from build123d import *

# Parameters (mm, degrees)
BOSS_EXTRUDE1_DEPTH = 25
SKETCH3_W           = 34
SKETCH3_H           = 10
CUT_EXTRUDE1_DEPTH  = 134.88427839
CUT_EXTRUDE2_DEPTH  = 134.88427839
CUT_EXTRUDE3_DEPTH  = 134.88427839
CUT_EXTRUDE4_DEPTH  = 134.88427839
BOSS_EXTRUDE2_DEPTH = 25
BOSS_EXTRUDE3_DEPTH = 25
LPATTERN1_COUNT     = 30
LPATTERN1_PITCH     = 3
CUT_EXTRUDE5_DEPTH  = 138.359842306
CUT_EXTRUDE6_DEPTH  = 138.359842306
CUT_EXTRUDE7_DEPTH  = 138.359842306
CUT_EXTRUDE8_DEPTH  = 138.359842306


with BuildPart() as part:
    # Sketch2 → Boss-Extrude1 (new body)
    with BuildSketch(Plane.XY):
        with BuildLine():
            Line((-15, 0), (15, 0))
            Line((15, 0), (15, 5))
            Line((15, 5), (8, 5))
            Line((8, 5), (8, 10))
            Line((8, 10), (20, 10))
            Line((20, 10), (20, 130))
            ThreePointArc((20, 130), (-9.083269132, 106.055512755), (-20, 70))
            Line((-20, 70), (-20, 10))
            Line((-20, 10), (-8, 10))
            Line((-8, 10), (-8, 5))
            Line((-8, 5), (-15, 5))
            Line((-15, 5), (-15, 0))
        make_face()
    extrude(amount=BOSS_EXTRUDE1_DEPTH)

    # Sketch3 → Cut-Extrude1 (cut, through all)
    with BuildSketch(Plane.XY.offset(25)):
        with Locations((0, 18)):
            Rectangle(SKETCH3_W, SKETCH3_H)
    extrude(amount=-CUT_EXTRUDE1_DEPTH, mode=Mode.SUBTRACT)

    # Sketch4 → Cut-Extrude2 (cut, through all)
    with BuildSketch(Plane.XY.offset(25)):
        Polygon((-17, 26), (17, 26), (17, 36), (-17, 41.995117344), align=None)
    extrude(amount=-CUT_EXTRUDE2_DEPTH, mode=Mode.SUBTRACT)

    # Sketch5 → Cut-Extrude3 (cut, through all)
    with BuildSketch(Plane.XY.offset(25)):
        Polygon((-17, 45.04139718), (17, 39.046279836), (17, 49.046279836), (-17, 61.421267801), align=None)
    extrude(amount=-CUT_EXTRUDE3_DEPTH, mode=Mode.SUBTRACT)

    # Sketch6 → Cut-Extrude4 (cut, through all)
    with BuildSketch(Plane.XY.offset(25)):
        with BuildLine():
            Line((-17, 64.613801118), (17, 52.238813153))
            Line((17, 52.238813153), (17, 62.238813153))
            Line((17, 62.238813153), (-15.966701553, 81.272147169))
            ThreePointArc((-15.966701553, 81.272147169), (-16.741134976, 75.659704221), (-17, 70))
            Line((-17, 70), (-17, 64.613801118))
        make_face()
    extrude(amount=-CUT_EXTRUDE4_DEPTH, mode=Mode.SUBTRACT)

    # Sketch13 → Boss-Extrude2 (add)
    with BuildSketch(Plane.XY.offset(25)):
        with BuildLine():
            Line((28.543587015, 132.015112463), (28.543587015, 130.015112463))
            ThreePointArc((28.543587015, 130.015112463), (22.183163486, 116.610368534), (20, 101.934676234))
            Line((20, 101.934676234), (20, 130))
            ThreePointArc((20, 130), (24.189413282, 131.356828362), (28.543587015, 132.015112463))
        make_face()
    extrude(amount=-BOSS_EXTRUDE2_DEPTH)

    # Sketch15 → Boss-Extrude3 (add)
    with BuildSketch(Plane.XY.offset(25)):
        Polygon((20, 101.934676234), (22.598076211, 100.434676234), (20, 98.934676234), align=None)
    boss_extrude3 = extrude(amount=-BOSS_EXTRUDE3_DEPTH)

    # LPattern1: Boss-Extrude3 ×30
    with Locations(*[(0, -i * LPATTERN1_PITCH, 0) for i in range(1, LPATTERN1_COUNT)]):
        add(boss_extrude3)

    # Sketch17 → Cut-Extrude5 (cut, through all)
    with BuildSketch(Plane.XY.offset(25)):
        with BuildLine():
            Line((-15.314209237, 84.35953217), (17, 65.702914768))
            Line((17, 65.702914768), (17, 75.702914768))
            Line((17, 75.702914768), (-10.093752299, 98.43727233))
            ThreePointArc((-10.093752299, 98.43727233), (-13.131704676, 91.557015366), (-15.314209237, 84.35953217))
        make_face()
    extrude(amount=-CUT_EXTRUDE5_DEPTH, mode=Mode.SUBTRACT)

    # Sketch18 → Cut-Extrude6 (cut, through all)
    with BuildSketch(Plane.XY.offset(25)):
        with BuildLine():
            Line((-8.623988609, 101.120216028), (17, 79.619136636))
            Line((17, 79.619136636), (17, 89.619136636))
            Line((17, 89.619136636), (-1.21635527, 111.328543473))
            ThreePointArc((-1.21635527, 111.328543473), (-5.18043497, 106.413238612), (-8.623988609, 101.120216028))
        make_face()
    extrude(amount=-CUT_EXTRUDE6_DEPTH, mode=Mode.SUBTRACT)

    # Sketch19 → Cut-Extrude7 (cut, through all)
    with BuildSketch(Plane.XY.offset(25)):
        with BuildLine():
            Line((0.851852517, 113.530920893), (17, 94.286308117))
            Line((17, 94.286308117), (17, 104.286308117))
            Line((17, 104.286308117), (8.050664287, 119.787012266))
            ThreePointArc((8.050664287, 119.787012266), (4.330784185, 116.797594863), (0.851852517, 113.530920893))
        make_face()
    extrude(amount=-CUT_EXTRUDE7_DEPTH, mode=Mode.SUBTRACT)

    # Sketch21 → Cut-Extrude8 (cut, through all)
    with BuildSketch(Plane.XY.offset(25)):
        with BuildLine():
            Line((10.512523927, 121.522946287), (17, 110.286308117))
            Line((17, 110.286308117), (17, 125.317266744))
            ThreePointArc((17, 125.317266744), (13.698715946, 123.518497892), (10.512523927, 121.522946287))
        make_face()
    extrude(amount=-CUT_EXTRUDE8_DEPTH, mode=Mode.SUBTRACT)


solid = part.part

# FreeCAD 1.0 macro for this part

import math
import FreeCAD as App
import Part
import Sketcher
from FreeCAD import Vector
Q = App.Units.Quantity


def add_polygon(sketch, points):
    """Adds a closed chain of lines whose ends are joined by coincident constraints."""
    first, n = sketch.GeometryCount, len(points)
    for a, b in zip(points, points[1:] + points[:1]):
        sketch.addGeometry(Part.LineSegment(App.Vector(*a, 0), App.Vector(*b, 0)), False)
    for i in range(n):
        sketch.addConstraint(Sketcher.Constraint("Coincident", first + i, 2, first + (i + 1) % n, 1))

doc = App.newDocument("Part")
params = doc.addObject("Spreadsheet::Sheet", "Params")
for row, (alias, value) in enumerate([
    ("sketch1_radius", "65 mm"),
    ("sketch1_width", "30 mm"),
    ("sketch1_width2", "7 mm"),
    ("sketch1_width3", "12 mm"),
    ("sketch1_height", "5 mm"),
    ("pad1_length", "25 mm"),
    ("sketch2_width", "34 mm"),
    ("sketch2_height", "10 mm"),
    ("sketch3_width", "34 mm"),
    ("sketch3_height", "10 mm"),
    ("sketch4_height", "10 mm"),
    ("sketch5_radius", "62 mm"),
    ("sketch5_height", "10 mm"),
    ("sketch6_height", "2 mm"),
    ("pad2_length", "25 mm"),
    ("sketch7_height", "3 mm"),
    ("pad3_length", "25 mm"),
    ("linearpattern_pitch", "3 mm"),
    ("sketch8_radius", "62 mm"),
    ("sketch8_height", "10 mm"),
    ("sketch9_radius", "62 mm"),
    ("sketch9_height", "10 mm"),
    ("sketch10_radius", "62 mm"),
    ("sketch10_height", "10 mm"),
    ("sketch11_radius", "62 mm"),
], start=1):
    params.set(f"A{row}", alias)
    params.set(f"B{row}", "=" + value)
    params.setAlias(f"B{row}", alias)

body = doc.addObject("PartDesign::Body", "Body")

sketch1 = doc.addObject("Sketcher::SketchObject", "Sketch")
body.addObject(sketch1)
sketch1.AttachmentSupport = (doc.XY_Plane, [""])
sketch1.MapMode = "FlatFace"
sketch1.addGeometry(Part.LineSegment(Vector(-15, 0, 0), Vector(15, 0, 0)), False)
sketch1.addGeometry(Part.LineSegment(Vector(15, 0, 0), Vector(15, 5, 0)), False)
sketch1.addGeometry(Part.LineSegment(Vector(15, 5, 0), Vector(8, 5, 0)), False)
sketch1.addGeometry(Part.LineSegment(Vector(8, 5, 0), Vector(8, 10, 0)), False)
sketch1.addGeometry(Part.LineSegment(Vector(8, 10, 0), Vector(20, 10, 0)), False)
sketch1.addGeometry(Part.LineSegment(Vector(20, 10, 0), Vector(20, 130, 0)), False)
sketch1.addGeometry(Part.ArcOfCircle(Part.Circle(Vector(45, 70, 0), Vector(0, 0, 1), 65), math.radians(113), math.radians(180)), False)
sketch1.addGeometry(Part.LineSegment(Vector(-20, 70, 0), Vector(-20, 10, 0)), False)
sketch1.addGeometry(Part.LineSegment(Vector(-20, 10, 0), Vector(-8, 10, 0)), False)
sketch1.addGeometry(Part.LineSegment(Vector(-8, 10, 0), Vector(-8, 5, 0)), False)
sketch1.addGeometry(Part.LineSegment(Vector(-8, 5, 0), Vector(-15, 5, 0)), False)
sketch1.addGeometry(Part.LineSegment(Vector(-15, 5, 0), Vector(-15, 0, 0)), False)
sketch1.addConstraint(Sketcher.Constraint("Coincident", 0, 2, 1, 1))
sketch1.addConstraint(Sketcher.Constraint("Coincident", 1, 2, 2, 1))
sketch1.addConstraint(Sketcher.Constraint("Coincident", 2, 2, 3, 1))
sketch1.addConstraint(Sketcher.Constraint("Coincident", 3, 2, 4, 1))
sketch1.addConstraint(Sketcher.Constraint("Coincident", 4, 2, 5, 1))
sketch1.addConstraint(Sketcher.Constraint("Coincident", 5, 2, 6, 1))
sketch1.addConstraint(Sketcher.Constraint("Tangent", 6, 2, 7, 1))
sketch1.addConstraint(Sketcher.Constraint("Coincident", 7, 2, 8, 1))
sketch1.addConstraint(Sketcher.Constraint("Coincident", 8, 2, 9, 1))
sketch1.addConstraint(Sketcher.Constraint("Coincident", 9, 2, 10, 1))
sketch1.addConstraint(Sketcher.Constraint("Coincident", 10, 2, 11, 1))
sketch1.addConstraint(Sketcher.Constraint("Coincident", 11, 2, 0, 1))
sketch1.addConstraint(Sketcher.Constraint("Horizontal", 0))
sketch1.addConstraint(Sketcher.Constraint("Vertical", 1))
sketch1.addConstraint(Sketcher.Constraint("Horizontal", 2))
sketch1.addConstraint(Sketcher.Constraint("Vertical", 3))
sketch1.addConstraint(Sketcher.Constraint("Horizontal", 4))
sketch1.addConstraint(Sketcher.Constraint("Vertical", 5))
sketch1.addConstraint(Sketcher.Constraint("Vertical", 7))
sketch1.addConstraint(Sketcher.Constraint("Horizontal", 8))
sketch1.addConstraint(Sketcher.Constraint("Vertical", 9))
sketch1.addConstraint(Sketcher.Constraint("Horizontal", 10))
sketch1.addConstraint(Sketcher.Constraint("Vertical", 11))
sketch1.addConstraint(Sketcher.Constraint("Symmetric", 0, 2, 11, 2, -1, 1))
sketch1.addConstraint(Sketcher.Constraint("Symmetric", 4, 2, 7, 2, -2))
sketch1.addConstraint(Sketcher.Constraint("Symmetric", 2, 2, 9, 2, -2))
sketch1.addConstraint(Sketcher.Constraint("Equal", 1, 3))
sketch1.addConstraint(Sketcher.Constraint("Radius", 6, Q("65 mm")))
sketch1.addConstraint(Sketcher.Constraint("DistanceX", 0, 1, 0, 2, Q("30 mm")))
sketch1.addConstraint(Sketcher.Constraint("DistanceX", 2, 2, 2, 1, Q("7 mm")))
sketch1.addConstraint(Sketcher.Constraint("DistanceX", 4, 1, 4, 2, Q("12 mm")))
sketch1.addConstraint(Sketcher.Constraint("DistanceY", 1, 1, 1, 2, Q("5 mm")))
sketch1.addConstraint(Sketcher.Constraint("DistanceY", 5, 1, 5, 2, Q("120 mm")))
sketch1.setExpression("Constraints[27]", "Params.sketch1_radius")
sketch1.setExpression("Constraints[28]", "Params.sketch1_width")
sketch1.setExpression("Constraints[29]", "Params.sketch1_width2")
sketch1.setExpression("Constraints[30]", "Params.sketch1_width3")
sketch1.setExpression("Constraints[31]", "Params.sketch1_height")
pad1 = doc.addObject("PartDesign::Pad", "Pad")
body.addObject(pad1)
pad1.Profile = sketch1
pad1.setExpression("Length", "Params.pad1_length")

sketch2 = doc.addObject("Sketcher::SketchObject", "Sketch001")
body.addObject(sketch2)
sketch2.AttachmentSupport = (doc.XY_Plane, [""])
sketch2.MapMode = "FlatFace"
sketch2.AttachmentOffset = App.Placement(Vector(0, 0, 25), App.Rotation())
add_polygon(sketch2, [(-17, 23), (-17, 13), (17, 13), (17, 23)])
sketch2.addConstraint(Sketcher.Constraint("Vertical", 0))
sketch2.addConstraint(Sketcher.Constraint("Horizontal", 1))
sketch2.addConstraint(Sketcher.Constraint("Vertical", 2))
sketch2.addConstraint(Sketcher.Constraint("Horizontal", 3))
sketch2.addConstraint(Sketcher.Constraint("DistanceX", 1, 1, 1, 2, Q("34 mm")))
sketch2.addConstraint(Sketcher.Constraint("DistanceY", 0, 2, 0, 1, Q("10 mm")))
sketch2.addConstraint(Sketcher.Constraint("DistanceX", 0, 2, -1, 1, Q("17 mm")))
sketch2.addConstraint(Sketcher.Constraint("DistanceY", -1, 1, 0, 2, Q("13 mm")))
sketch2.setExpression("Constraints[8]", "Params.sketch2_width")
sketch2.setExpression("Constraints[9]", "Params.sketch2_height")
pocket1 = doc.addObject("PartDesign::Pocket", "Pocket")
body.addObject(pocket1)
pocket1.Profile = sketch2
pocket1.Type = "ThroughAll"

sketch3 = doc.addObject("Sketcher::SketchObject", "Sketch002")
body.addObject(sketch3)
sketch3.AttachmentSupport = (doc.XY_Plane, [""])
sketch3.MapMode = "FlatFace"
sketch3.AttachmentOffset = App.Placement(Vector(0, 0, 25), App.Rotation())
add_polygon(sketch3, [(-17, 26), (17, 26), (17, 36), (-17, 42)])
sketch3.addConstraint(Sketcher.Constraint("Horizontal", 0))
sketch3.addConstraint(Sketcher.Constraint("Vertical", 1))
sketch3.addConstraint(Sketcher.Constraint("Vertical", 3))
sketch3.addConstraint(Sketcher.Constraint("DistanceX", 0, 1, 0, 2, Q("34 mm")))
sketch3.addConstraint(Sketcher.Constraint("DistanceY", 1, 1, 1, 2, Q("10 mm")))
sketch3.addConstraint(Sketcher.Constraint("Angle", 2, Q("170 deg")))
sketch3.addConstraint(Sketcher.Constraint("DistanceX", -1, 1, 0, 2, Q("17 mm")))
sketch3.addConstraint(Sketcher.Constraint("DistanceY", -1, 1, 0, 2, Q("26 mm")))
sketch3.setExpression("Constraints[7]", "Params.sketch3_width")
sketch3.setExpression("Constraints[8]", "Params.sketch3_height")
pocket2 = doc.addObject("PartDesign::Pocket", "Pocket001")
body.addObject(pocket2)
pocket2.Profile = sketch3
pocket2.Type = "ThroughAll"

sketch4 = doc.addObject("Sketcher::SketchObject", "Sketch003")
body.addObject(sketch4)
sketch4.AttachmentSupport = (doc.XY_Plane, [""])
sketch4.MapMode = "FlatFace"
sketch4.AttachmentOffset = App.Placement(Vector(0, 0, 25), App.Rotation())
add_polygon(sketch4, [(-17, 45), (17, 39), (17, 49), (-17, 61)])
sketch4.addConstraint(Sketcher.Constraint("Vertical", 1))
sketch4.addConstraint(Sketcher.Constraint("Vertical", 3))
sketch4.addConstraint(Sketcher.Constraint("DistanceY", 1, 1, 1, 2, Q("10 mm")))
sketch4.addConstraint(Sketcher.Constraint("Angle", 0, Q("-10 deg")))
sketch4.addConstraint(Sketcher.Constraint("Angle", 2, Q("160 deg")))
sketch4.addConstraint(Sketcher.Constraint("DistanceX", -1, 1, 0, 2, Q("17 mm")))
sketch4.addConstraint(Sketcher.Constraint("DistanceX", 2, 2, -1, 1, Q("17 mm")))
sketch4.addConstraint(Sketcher.Constraint("DistanceY", -1, 1, 0, 2, Q("39.04628 mm")))
sketch4.setExpression("Constraints[6]", "Params.sketch4_height")
pocket3 = doc.addObject("PartDesign::Pocket", "Pocket002")
body.addObject(pocket3)
pocket3.Profile = sketch4
pocket3.Type = "ThroughAll"

sketch5 = doc.addObject("Sketcher::SketchObject", "Sketch004")
body.addObject(sketch5)
sketch5.AttachmentSupport = (doc.XY_Plane, [""])
sketch5.MapMode = "FlatFace"
sketch5.AttachmentOffset = App.Placement(Vector(0, 0, 25), App.Rotation())
sketch5.addGeometry(Part.LineSegment(Vector(-17, 65, 0), Vector(17, 52, 0)), False)
sketch5.addGeometry(Part.LineSegment(Vector(17, 52, 0), Vector(17, 62, 0)), False)
sketch5.addGeometry(Part.LineSegment(Vector(17, 62, 0), Vector(-16, 81, 0)), False)
sketch5.addGeometry(Part.ArcOfCircle(Part.Circle(Vector(45, 70, 0), Vector(0, 0, 1), 62), math.radians(169.52), math.radians(180)), False)
sketch5.addGeometry(Part.LineSegment(Vector(-17, 70, 0), Vector(-17, 65, 0)), False)
sketch5.addConstraint(Sketcher.Constraint("Coincident", 0, 2, 1, 1))
sketch5.addConstraint(Sketcher.Constraint("Coincident", 1, 2, 2, 1))
sketch5.addConstraint(Sketcher.Constraint("Coincident", 2, 2, 3, 1))
sketch5.addConstraint(Sketcher.Constraint("Tangent", 3, 2, 4, 1))
sketch5.addConstraint(Sketcher.Constraint("Coincident", 4, 2, 0, 1))
sketch5.addConstraint(Sketcher.Constraint("Vertical", 1))
sketch5.addConstraint(Sketcher.Constraint("Vertical", 4))
sketch5.addConstraint(Sketcher.Constraint("Radius", 3, Q("62 mm")))
sketch5.addConstraint(Sketcher.Constraint("DistanceY", 1, 1, 1, 2, Q("10 mm")))
sketch5.addConstraint(Sketcher.Constraint("Angle", 0, Q("-20 deg")))
sketch5.addConstraint(Sketcher.Constraint("Angle", 2, Q("150 deg")))
sketch5.addConstraint(Sketcher.Constraint("DistanceX", -1, 1, 3, 3, Q("45 mm")))
sketch5.addConstraint(Sketcher.Constraint("DistanceY", -1, 1, 3, 3, Q("70 mm")))
sketch5.addConstraint(Sketcher.Constraint("DistanceX", -1, 1, 0, 2, Q("17 mm")))
sketch5.addConstraint(Sketcher.Constraint("DistanceY", 4, 2, 4, 1, Q("5.386199 mm")))
sketch5.setExpression("Constraints[7]", "Params.sketch5_radius")
sketch5.setExpression("Constraints[8]", "Params.sketch5_height")
pocket4 = doc.addObject("PartDesign::Pocket", "Pocket003")
body.addObject(pocket4)
pocket4.Profile = sketch5
pocket4.Type = "ThroughAll"

sketch6 = doc.addObject("Sketcher::SketchObject", "Sketch005")
body.addObject(sketch6)
sketch6.AttachmentSupport = (doc.XY_Plane, [""])
sketch6.MapMode = "FlatFace"
sketch6.AttachmentOffset = App.Placement(Vector(0, 0, 25), App.Rotation())
sketch6.addGeometry(Part.LineSegment(Vector(28.5, 130, 0), Vector(28.5, 132, 0)), False)
sketch6.addGeometry(Part.ArcOfCircle(Part.Circle(Vector(30.4, 105.1, 0), Vector(0, 0, 1), 27), math.radians(93.92), math.radians(112.62)), False)
sketch6.addGeometry(Part.LineSegment(Vector(20, 130, 0), Vector(20, 101.9, 0)), False)
sketch6.addGeometry(Part.ArcOfCircle(Part.Circle(Vector(70.4, 101.9, 0), Vector(0, 0, 1), 50.4), math.radians(146), math.radians(180)), False)
sketch6.addConstraint(Sketcher.Constraint("Coincident", 0, 2, 1, 1))
sketch6.addConstraint(Sketcher.Constraint("Coincident", 1, 2, 2, 1))
sketch6.addConstraint(Sketcher.Constraint("Tangent", 2, 2, 3, 2))
sketch6.addConstraint(Sketcher.Constraint("Coincident", 3, 1, 0, 1))
sketch6.addConstraint(Sketcher.Constraint("Vertical", 0))
sketch6.addConstraint(Sketcher.Constraint("Vertical", 2))
sketch6.addConstraint(Sketcher.Constraint("DistanceY", 0, 1, 0, 2, Q("2 mm")))
sketch6.addConstraint(Sketcher.Constraint("DistanceX", -1, 1, 1, 2, Q("20 mm")))
sketch6.addConstraint(Sketcher.Constraint("DistanceY", -1, 1, 1, 2, Q("130 mm")))
sketch6.addConstraint(Sketcher.Constraint("Radius", 1, Q("27.019438 mm")))
sketch6.addConstraint(Sketcher.Constraint("Radius", 3, Q("50.418154 mm")))
sketch6.addConstraint(Sketcher.Constraint("DistanceY", 2, 2, 2, 1, Q("28.065324 mm")))
sketch6.addConstraint(Sketcher.Constraint("DistanceX", -1, 1, 1, 3, Q("30.392092 mm")))
sketch6.setExpression("Constraints[6]", "Params.sketch6_height")
pad2 = doc.addObject("PartDesign::Pad", "Pad001")
body.addObject(pad2)
pad2.Profile = sketch6
pad2.setExpression("Length", "Params.pad2_length")
pad2.Reversed = True

sketch7 = doc.addObject("Sketcher::SketchObject", "Sketch006")
body.addObject(sketch7)
sketch7.AttachmentSupport = (doc.XY_Plane, [""])
sketch7.MapMode = "FlatFace"
sketch7.AttachmentOffset = App.Placement(Vector(0, 0, 25), App.Rotation())
add_polygon(sketch7, [(22.6, 100.4), (20, 101.9), (20, 98.9)])
sketch7.addConstraint(Sketcher.Constraint("Vertical", 1))
sketch7.addConstraint(Sketcher.Constraint("Equal", 0, 2))
sketch7.addConstraint(Sketcher.Constraint("DistanceY", 1, 2, 1, 1, Q("3 mm")))
sketch7.addConstraint(Sketcher.Constraint("Angle", 0, Q("150 deg")))
sketch7.addConstraint(Sketcher.Constraint("DistanceX", -1, 1, 0, 2, Q("20 mm")))
sketch7.addConstraint(Sketcher.Constraint("DistanceY", -1, 1, 0, 2, Q("101.934676 mm")))
sketch7.setExpression("Constraints[5]", "Params.sketch7_height")
pad3 = doc.addObject("PartDesign::Pad", "Pad002")
body.addObject(pad3)
pad3.Profile = sketch7
pad3.setExpression("Length", "Params.pad3_length")
pad3.Reversed = True
doc.recompute()

linearpattern = doc.addObject("PartDesign::LinearPattern", "LinearPattern")
body.addObject(linearpattern)
linearpattern.Originals = [pad3]
linearpattern.Direction = (doc.Y_Axis, [""])
linearpattern.Mode = "offset"
linearpattern.setExpression("Offset", "Params.linearpattern_pitch")
linearpattern.Occurrences = 30
linearpattern.Reversed = True
body.Tip = linearpattern

sketch8 = doc.addObject("Sketcher::SketchObject", "Sketch007")
body.addObject(sketch8)
sketch8.AttachmentSupport = (doc.XY_Plane, [""])
sketch8.MapMode = "FlatFace"
sketch8.AttachmentOffset = App.Placement(Vector(0, 0, 25), App.Rotation())
sketch8.addGeometry(Part.LineSegment(Vector(-15, 84, 0), Vector(17, 66, 0)), False)
sketch8.addGeometry(Part.LineSegment(Vector(17, 66, 0), Vector(17, 76, 0)), False)
sketch8.addGeometry(Part.LineSegment(Vector(17, 76, 0), Vector(-10, 98, 0)), False)
sketch8.addGeometry(Part.ArcOfCircle(Part.Circle(Vector(45, 70, 0), Vector(0, 0, 1), 62), math.radians(152.7), math.radians(166.61)), False)
sketch8.addConstraint(Sketcher.Constraint("Coincident", 0, 2, 1, 1))
sketch8.addConstraint(Sketcher.Constraint("Coincident", 1, 2, 2, 1))
sketch8.addConstraint(Sketcher.Constraint("Coincident", 2, 2, 3, 1))
sketch8.addConstraint(Sketcher.Constraint("Coincident", 3, 2, 0, 1))
sketch8.addConstraint(Sketcher.Constraint("Vertical", 1))
sketch8.addConstraint(Sketcher.Constraint("Radius", 3, Q("62 mm")))
sketch8.addConstraint(Sketcher.Constraint("DistanceY", 1, 1, 1, 2, Q("10 mm")))
sketch8.addConstraint(Sketcher.Constraint("Angle", 0, Q("-30 deg")))
sketch8.addConstraint(Sketcher.Constraint("Angle", 2, Q("140 deg")))
sketch8.addConstraint(Sketcher.Constraint("DistanceX", -1, 1, 3, 3, Q("45 mm")))
sketch8.addConstraint(Sketcher.Constraint("DistanceY", -1, 1, 3, 3, Q("70 mm")))
sketch8.addConstraint(Sketcher.Constraint("DistanceX", -1, 1, 0, 2, Q("17 mm")))
sketch8.addConstraint(Sketcher.Constraint("Distance", 2, Q("35.368382 mm")))
sketch8.setExpression("Constraints[5]", "Params.sketch8_radius")
sketch8.setExpression("Constraints[6]", "Params.sketch8_height")
pocket5 = doc.addObject("PartDesign::Pocket", "Pocket004")
body.addObject(pocket5)
pocket5.Profile = sketch8
pocket5.Type = "ThroughAll"

sketch9 = doc.addObject("Sketcher::SketchObject", "Sketch008")
body.addObject(sketch9)
sketch9.AttachmentSupport = (doc.XY_Plane, [""])
sketch9.MapMode = "FlatFace"
sketch9.AttachmentOffset = App.Placement(Vector(0, 0, 25), App.Rotation())
sketch9.addGeometry(Part.LineSegment(Vector(-9, 101, 0), Vector(17, 80, 0)), False)
sketch9.addGeometry(Part.LineSegment(Vector(17, 80, 0), Vector(17, 90, 0)), False)
sketch9.addGeometry(Part.LineSegment(Vector(17, 90, 0), Vector(-1, 111, 0)), False)
sketch9.addGeometry(Part.ArcOfCircle(Part.Circle(Vector(45, 70, 0), Vector(0, 0, 1), 62), math.radians(138.2), math.radians(149.87)), False)
sketch9.addConstraint(Sketcher.Constraint("Coincident", 0, 2, 1, 1))
sketch9.addConstraint(Sketcher.Constraint("Coincident", 1, 2, 2, 1))
sketch9.addConstraint(Sketcher.Constraint("Coincident", 2, 2, 3, 1))
sketch9.addConstraint(Sketcher.Constraint("Coincident", 3, 2, 0, 1))
sketch9.addConstraint(Sketcher.Constraint("Vertical", 1))
sketch9.addConstraint(Sketcher.Constraint("Radius", 3, Q("62 mm")))
sketch9.addConstraint(Sketcher.Constraint("DistanceY", 1, 1, 1, 2, Q("10 mm")))
sketch9.addConstraint(Sketcher.Constraint("Angle", 0, Q("-40 deg")))
sketch9.addConstraint(Sketcher.Constraint("Angle", 2, Q("130 deg")))
sketch9.addConstraint(Sketcher.Constraint("DistanceX", -1, 1, 3, 3, Q("45 mm")))
sketch9.addConstraint(Sketcher.Constraint("DistanceY", -1, 1, 3, 3, Q("70 mm")))
sketch9.addConstraint(Sketcher.Constraint("DistanceX", -1, 1, 0, 2, Q("17 mm")))
sketch9.addConstraint(Sketcher.Constraint("Distance", 0, Q("33.449742 mm")))
sketch9.setExpression("Constraints[5]", "Params.sketch9_radius")
sketch9.setExpression("Constraints[6]", "Params.sketch9_height")
pocket6 = doc.addObject("PartDesign::Pocket", "Pocket005")
body.addObject(pocket6)
pocket6.Profile = sketch9
pocket6.Type = "ThroughAll"

sketch10 = doc.addObject("Sketcher::SketchObject", "Sketch009")
body.addObject(sketch10)
sketch10.AttachmentSupport = (doc.XY_Plane, [""])
sketch10.MapMode = "FlatFace"
sketch10.AttachmentOffset = App.Placement(Vector(0, 0, 25), App.Rotation())
sketch10.addGeometry(Part.LineSegment(Vector(1, 114, 0), Vector(17, 94, 0)), False)
sketch10.addGeometry(Part.LineSegment(Vector(17, 94, 0), Vector(17, 104, 0)), False)
sketch10.addGeometry(Part.LineSegment(Vector(17, 104, 0), Vector(8, 120, 0)), False)
sketch10.addGeometry(Part.ArcOfCircle(Part.Circle(Vector(45, 70, 0), Vector(0, 0, 1), 62), math.radians(126.58), math.radians(135.4)), False)
sketch10.addConstraint(Sketcher.Constraint("Coincident", 0, 2, 1, 1))
sketch10.addConstraint(Sketcher.Constraint("Coincident", 1, 2, 2, 1))
sketch10.addConstraint(Sketcher.Constraint("Coincident", 2, 2, 3, 1))
sketch10.addConstraint(Sketcher.Constraint("Coincident", 3, 2, 0, 1))
sketch10.addConstraint(Sketcher.Constraint("Vertical", 1))
sketch10.addConstraint(Sketcher.Constraint("Radius", 3, Q("62 mm")))
sketch10.addConstraint(Sketcher.Constraint("DistanceY", 1, 1, 1, 2, Q("10 mm")))
sketch10.addConstraint(Sketcher.Constraint("Angle", 0, Q("-50 deg")))
sketch10.addConstraint(Sketcher.Constraint("Angle", 2, Q("120 deg")))
sketch10.addConstraint(Sketcher.Constraint("DistanceX", -1, 1, 3, 3, Q("45 mm")))
sketch10.addConstraint(Sketcher.Constraint("DistanceY", -1, 1, 3, 3, Q("70 mm")))
sketch10.addConstraint(Sketcher.Constraint("DistanceX", -1, 1, 0, 2, Q("17 mm")))
sketch10.addConstraint(Sketcher.Constraint("Distance", 2, Q("17.898671 mm")))
sketch10.setExpression("Constraints[5]", "Params.sketch10_radius")
sketch10.setExpression("Constraints[6]", "Params.sketch10_height")
pocket7 = doc.addObject("PartDesign::Pocket", "Pocket006")
body.addObject(pocket7)
pocket7.Profile = sketch10
pocket7.Type = "ThroughAll"

sketch11 = doc.addObject("Sketcher::SketchObject", "Sketch010")
body.addObject(sketch11)
sketch11.AttachmentSupport = (doc.XY_Plane, [""])
sketch11.MapMode = "FlatFace"
sketch11.AttachmentOffset = App.Placement(Vector(0, 0, 25), App.Rotation())
sketch11.addGeometry(Part.LineSegment(Vector(11, 122, 0), Vector(17, 110, 0)), False)
sketch11.addGeometry(Part.LineSegment(Vector(17, 110, 0), Vector(17, 125, 0)), False)
sketch11.addGeometry(Part.ArcOfCircle(Part.Circle(Vector(45, 70, 0), Vector(0, 0, 1), 62), math.radians(116.85), math.radians(123.8)), False)
sketch11.addConstraint(Sketcher.Constraint("Coincident", 0, 2, 1, 1))
sketch11.addConstraint(Sketcher.Constraint("Coincident", 1, 2, 2, 1))
sketch11.addConstraint(Sketcher.Constraint("Coincident", 2, 2, 0, 1))
sketch11.addConstraint(Sketcher.Constraint("Vertical", 1))
sketch11.addConstraint(Sketcher.Constraint("Radius", 2, Q("62 mm")))
sketch11.addConstraint(Sketcher.Constraint("Angle", 0, Q("-60 deg")))
sketch11.addConstraint(Sketcher.Constraint("DistanceX", -1, 1, 2, 3, Q("45 mm")))
sketch11.addConstraint(Sketcher.Constraint("DistanceY", -1, 1, 2, 3, Q("70 mm")))
sketch11.addConstraint(Sketcher.Constraint("DistanceX", -1, 1, 0, 2, Q("17 mm")))
sketch11.addConstraint(Sketcher.Constraint("DistanceY", 1, 1, 1, 2, Q("15.030959 mm")))
sketch11.setExpression("Constraints[4]", "Params.sketch11_radius")
pocket8 = doc.addObject("PartDesign::Pocket", "Pocket007")
body.addObject(pocket8)
pocket8.Profile = sketch11
pocket8.Type = "ThroughAll"

doc.recompute()
